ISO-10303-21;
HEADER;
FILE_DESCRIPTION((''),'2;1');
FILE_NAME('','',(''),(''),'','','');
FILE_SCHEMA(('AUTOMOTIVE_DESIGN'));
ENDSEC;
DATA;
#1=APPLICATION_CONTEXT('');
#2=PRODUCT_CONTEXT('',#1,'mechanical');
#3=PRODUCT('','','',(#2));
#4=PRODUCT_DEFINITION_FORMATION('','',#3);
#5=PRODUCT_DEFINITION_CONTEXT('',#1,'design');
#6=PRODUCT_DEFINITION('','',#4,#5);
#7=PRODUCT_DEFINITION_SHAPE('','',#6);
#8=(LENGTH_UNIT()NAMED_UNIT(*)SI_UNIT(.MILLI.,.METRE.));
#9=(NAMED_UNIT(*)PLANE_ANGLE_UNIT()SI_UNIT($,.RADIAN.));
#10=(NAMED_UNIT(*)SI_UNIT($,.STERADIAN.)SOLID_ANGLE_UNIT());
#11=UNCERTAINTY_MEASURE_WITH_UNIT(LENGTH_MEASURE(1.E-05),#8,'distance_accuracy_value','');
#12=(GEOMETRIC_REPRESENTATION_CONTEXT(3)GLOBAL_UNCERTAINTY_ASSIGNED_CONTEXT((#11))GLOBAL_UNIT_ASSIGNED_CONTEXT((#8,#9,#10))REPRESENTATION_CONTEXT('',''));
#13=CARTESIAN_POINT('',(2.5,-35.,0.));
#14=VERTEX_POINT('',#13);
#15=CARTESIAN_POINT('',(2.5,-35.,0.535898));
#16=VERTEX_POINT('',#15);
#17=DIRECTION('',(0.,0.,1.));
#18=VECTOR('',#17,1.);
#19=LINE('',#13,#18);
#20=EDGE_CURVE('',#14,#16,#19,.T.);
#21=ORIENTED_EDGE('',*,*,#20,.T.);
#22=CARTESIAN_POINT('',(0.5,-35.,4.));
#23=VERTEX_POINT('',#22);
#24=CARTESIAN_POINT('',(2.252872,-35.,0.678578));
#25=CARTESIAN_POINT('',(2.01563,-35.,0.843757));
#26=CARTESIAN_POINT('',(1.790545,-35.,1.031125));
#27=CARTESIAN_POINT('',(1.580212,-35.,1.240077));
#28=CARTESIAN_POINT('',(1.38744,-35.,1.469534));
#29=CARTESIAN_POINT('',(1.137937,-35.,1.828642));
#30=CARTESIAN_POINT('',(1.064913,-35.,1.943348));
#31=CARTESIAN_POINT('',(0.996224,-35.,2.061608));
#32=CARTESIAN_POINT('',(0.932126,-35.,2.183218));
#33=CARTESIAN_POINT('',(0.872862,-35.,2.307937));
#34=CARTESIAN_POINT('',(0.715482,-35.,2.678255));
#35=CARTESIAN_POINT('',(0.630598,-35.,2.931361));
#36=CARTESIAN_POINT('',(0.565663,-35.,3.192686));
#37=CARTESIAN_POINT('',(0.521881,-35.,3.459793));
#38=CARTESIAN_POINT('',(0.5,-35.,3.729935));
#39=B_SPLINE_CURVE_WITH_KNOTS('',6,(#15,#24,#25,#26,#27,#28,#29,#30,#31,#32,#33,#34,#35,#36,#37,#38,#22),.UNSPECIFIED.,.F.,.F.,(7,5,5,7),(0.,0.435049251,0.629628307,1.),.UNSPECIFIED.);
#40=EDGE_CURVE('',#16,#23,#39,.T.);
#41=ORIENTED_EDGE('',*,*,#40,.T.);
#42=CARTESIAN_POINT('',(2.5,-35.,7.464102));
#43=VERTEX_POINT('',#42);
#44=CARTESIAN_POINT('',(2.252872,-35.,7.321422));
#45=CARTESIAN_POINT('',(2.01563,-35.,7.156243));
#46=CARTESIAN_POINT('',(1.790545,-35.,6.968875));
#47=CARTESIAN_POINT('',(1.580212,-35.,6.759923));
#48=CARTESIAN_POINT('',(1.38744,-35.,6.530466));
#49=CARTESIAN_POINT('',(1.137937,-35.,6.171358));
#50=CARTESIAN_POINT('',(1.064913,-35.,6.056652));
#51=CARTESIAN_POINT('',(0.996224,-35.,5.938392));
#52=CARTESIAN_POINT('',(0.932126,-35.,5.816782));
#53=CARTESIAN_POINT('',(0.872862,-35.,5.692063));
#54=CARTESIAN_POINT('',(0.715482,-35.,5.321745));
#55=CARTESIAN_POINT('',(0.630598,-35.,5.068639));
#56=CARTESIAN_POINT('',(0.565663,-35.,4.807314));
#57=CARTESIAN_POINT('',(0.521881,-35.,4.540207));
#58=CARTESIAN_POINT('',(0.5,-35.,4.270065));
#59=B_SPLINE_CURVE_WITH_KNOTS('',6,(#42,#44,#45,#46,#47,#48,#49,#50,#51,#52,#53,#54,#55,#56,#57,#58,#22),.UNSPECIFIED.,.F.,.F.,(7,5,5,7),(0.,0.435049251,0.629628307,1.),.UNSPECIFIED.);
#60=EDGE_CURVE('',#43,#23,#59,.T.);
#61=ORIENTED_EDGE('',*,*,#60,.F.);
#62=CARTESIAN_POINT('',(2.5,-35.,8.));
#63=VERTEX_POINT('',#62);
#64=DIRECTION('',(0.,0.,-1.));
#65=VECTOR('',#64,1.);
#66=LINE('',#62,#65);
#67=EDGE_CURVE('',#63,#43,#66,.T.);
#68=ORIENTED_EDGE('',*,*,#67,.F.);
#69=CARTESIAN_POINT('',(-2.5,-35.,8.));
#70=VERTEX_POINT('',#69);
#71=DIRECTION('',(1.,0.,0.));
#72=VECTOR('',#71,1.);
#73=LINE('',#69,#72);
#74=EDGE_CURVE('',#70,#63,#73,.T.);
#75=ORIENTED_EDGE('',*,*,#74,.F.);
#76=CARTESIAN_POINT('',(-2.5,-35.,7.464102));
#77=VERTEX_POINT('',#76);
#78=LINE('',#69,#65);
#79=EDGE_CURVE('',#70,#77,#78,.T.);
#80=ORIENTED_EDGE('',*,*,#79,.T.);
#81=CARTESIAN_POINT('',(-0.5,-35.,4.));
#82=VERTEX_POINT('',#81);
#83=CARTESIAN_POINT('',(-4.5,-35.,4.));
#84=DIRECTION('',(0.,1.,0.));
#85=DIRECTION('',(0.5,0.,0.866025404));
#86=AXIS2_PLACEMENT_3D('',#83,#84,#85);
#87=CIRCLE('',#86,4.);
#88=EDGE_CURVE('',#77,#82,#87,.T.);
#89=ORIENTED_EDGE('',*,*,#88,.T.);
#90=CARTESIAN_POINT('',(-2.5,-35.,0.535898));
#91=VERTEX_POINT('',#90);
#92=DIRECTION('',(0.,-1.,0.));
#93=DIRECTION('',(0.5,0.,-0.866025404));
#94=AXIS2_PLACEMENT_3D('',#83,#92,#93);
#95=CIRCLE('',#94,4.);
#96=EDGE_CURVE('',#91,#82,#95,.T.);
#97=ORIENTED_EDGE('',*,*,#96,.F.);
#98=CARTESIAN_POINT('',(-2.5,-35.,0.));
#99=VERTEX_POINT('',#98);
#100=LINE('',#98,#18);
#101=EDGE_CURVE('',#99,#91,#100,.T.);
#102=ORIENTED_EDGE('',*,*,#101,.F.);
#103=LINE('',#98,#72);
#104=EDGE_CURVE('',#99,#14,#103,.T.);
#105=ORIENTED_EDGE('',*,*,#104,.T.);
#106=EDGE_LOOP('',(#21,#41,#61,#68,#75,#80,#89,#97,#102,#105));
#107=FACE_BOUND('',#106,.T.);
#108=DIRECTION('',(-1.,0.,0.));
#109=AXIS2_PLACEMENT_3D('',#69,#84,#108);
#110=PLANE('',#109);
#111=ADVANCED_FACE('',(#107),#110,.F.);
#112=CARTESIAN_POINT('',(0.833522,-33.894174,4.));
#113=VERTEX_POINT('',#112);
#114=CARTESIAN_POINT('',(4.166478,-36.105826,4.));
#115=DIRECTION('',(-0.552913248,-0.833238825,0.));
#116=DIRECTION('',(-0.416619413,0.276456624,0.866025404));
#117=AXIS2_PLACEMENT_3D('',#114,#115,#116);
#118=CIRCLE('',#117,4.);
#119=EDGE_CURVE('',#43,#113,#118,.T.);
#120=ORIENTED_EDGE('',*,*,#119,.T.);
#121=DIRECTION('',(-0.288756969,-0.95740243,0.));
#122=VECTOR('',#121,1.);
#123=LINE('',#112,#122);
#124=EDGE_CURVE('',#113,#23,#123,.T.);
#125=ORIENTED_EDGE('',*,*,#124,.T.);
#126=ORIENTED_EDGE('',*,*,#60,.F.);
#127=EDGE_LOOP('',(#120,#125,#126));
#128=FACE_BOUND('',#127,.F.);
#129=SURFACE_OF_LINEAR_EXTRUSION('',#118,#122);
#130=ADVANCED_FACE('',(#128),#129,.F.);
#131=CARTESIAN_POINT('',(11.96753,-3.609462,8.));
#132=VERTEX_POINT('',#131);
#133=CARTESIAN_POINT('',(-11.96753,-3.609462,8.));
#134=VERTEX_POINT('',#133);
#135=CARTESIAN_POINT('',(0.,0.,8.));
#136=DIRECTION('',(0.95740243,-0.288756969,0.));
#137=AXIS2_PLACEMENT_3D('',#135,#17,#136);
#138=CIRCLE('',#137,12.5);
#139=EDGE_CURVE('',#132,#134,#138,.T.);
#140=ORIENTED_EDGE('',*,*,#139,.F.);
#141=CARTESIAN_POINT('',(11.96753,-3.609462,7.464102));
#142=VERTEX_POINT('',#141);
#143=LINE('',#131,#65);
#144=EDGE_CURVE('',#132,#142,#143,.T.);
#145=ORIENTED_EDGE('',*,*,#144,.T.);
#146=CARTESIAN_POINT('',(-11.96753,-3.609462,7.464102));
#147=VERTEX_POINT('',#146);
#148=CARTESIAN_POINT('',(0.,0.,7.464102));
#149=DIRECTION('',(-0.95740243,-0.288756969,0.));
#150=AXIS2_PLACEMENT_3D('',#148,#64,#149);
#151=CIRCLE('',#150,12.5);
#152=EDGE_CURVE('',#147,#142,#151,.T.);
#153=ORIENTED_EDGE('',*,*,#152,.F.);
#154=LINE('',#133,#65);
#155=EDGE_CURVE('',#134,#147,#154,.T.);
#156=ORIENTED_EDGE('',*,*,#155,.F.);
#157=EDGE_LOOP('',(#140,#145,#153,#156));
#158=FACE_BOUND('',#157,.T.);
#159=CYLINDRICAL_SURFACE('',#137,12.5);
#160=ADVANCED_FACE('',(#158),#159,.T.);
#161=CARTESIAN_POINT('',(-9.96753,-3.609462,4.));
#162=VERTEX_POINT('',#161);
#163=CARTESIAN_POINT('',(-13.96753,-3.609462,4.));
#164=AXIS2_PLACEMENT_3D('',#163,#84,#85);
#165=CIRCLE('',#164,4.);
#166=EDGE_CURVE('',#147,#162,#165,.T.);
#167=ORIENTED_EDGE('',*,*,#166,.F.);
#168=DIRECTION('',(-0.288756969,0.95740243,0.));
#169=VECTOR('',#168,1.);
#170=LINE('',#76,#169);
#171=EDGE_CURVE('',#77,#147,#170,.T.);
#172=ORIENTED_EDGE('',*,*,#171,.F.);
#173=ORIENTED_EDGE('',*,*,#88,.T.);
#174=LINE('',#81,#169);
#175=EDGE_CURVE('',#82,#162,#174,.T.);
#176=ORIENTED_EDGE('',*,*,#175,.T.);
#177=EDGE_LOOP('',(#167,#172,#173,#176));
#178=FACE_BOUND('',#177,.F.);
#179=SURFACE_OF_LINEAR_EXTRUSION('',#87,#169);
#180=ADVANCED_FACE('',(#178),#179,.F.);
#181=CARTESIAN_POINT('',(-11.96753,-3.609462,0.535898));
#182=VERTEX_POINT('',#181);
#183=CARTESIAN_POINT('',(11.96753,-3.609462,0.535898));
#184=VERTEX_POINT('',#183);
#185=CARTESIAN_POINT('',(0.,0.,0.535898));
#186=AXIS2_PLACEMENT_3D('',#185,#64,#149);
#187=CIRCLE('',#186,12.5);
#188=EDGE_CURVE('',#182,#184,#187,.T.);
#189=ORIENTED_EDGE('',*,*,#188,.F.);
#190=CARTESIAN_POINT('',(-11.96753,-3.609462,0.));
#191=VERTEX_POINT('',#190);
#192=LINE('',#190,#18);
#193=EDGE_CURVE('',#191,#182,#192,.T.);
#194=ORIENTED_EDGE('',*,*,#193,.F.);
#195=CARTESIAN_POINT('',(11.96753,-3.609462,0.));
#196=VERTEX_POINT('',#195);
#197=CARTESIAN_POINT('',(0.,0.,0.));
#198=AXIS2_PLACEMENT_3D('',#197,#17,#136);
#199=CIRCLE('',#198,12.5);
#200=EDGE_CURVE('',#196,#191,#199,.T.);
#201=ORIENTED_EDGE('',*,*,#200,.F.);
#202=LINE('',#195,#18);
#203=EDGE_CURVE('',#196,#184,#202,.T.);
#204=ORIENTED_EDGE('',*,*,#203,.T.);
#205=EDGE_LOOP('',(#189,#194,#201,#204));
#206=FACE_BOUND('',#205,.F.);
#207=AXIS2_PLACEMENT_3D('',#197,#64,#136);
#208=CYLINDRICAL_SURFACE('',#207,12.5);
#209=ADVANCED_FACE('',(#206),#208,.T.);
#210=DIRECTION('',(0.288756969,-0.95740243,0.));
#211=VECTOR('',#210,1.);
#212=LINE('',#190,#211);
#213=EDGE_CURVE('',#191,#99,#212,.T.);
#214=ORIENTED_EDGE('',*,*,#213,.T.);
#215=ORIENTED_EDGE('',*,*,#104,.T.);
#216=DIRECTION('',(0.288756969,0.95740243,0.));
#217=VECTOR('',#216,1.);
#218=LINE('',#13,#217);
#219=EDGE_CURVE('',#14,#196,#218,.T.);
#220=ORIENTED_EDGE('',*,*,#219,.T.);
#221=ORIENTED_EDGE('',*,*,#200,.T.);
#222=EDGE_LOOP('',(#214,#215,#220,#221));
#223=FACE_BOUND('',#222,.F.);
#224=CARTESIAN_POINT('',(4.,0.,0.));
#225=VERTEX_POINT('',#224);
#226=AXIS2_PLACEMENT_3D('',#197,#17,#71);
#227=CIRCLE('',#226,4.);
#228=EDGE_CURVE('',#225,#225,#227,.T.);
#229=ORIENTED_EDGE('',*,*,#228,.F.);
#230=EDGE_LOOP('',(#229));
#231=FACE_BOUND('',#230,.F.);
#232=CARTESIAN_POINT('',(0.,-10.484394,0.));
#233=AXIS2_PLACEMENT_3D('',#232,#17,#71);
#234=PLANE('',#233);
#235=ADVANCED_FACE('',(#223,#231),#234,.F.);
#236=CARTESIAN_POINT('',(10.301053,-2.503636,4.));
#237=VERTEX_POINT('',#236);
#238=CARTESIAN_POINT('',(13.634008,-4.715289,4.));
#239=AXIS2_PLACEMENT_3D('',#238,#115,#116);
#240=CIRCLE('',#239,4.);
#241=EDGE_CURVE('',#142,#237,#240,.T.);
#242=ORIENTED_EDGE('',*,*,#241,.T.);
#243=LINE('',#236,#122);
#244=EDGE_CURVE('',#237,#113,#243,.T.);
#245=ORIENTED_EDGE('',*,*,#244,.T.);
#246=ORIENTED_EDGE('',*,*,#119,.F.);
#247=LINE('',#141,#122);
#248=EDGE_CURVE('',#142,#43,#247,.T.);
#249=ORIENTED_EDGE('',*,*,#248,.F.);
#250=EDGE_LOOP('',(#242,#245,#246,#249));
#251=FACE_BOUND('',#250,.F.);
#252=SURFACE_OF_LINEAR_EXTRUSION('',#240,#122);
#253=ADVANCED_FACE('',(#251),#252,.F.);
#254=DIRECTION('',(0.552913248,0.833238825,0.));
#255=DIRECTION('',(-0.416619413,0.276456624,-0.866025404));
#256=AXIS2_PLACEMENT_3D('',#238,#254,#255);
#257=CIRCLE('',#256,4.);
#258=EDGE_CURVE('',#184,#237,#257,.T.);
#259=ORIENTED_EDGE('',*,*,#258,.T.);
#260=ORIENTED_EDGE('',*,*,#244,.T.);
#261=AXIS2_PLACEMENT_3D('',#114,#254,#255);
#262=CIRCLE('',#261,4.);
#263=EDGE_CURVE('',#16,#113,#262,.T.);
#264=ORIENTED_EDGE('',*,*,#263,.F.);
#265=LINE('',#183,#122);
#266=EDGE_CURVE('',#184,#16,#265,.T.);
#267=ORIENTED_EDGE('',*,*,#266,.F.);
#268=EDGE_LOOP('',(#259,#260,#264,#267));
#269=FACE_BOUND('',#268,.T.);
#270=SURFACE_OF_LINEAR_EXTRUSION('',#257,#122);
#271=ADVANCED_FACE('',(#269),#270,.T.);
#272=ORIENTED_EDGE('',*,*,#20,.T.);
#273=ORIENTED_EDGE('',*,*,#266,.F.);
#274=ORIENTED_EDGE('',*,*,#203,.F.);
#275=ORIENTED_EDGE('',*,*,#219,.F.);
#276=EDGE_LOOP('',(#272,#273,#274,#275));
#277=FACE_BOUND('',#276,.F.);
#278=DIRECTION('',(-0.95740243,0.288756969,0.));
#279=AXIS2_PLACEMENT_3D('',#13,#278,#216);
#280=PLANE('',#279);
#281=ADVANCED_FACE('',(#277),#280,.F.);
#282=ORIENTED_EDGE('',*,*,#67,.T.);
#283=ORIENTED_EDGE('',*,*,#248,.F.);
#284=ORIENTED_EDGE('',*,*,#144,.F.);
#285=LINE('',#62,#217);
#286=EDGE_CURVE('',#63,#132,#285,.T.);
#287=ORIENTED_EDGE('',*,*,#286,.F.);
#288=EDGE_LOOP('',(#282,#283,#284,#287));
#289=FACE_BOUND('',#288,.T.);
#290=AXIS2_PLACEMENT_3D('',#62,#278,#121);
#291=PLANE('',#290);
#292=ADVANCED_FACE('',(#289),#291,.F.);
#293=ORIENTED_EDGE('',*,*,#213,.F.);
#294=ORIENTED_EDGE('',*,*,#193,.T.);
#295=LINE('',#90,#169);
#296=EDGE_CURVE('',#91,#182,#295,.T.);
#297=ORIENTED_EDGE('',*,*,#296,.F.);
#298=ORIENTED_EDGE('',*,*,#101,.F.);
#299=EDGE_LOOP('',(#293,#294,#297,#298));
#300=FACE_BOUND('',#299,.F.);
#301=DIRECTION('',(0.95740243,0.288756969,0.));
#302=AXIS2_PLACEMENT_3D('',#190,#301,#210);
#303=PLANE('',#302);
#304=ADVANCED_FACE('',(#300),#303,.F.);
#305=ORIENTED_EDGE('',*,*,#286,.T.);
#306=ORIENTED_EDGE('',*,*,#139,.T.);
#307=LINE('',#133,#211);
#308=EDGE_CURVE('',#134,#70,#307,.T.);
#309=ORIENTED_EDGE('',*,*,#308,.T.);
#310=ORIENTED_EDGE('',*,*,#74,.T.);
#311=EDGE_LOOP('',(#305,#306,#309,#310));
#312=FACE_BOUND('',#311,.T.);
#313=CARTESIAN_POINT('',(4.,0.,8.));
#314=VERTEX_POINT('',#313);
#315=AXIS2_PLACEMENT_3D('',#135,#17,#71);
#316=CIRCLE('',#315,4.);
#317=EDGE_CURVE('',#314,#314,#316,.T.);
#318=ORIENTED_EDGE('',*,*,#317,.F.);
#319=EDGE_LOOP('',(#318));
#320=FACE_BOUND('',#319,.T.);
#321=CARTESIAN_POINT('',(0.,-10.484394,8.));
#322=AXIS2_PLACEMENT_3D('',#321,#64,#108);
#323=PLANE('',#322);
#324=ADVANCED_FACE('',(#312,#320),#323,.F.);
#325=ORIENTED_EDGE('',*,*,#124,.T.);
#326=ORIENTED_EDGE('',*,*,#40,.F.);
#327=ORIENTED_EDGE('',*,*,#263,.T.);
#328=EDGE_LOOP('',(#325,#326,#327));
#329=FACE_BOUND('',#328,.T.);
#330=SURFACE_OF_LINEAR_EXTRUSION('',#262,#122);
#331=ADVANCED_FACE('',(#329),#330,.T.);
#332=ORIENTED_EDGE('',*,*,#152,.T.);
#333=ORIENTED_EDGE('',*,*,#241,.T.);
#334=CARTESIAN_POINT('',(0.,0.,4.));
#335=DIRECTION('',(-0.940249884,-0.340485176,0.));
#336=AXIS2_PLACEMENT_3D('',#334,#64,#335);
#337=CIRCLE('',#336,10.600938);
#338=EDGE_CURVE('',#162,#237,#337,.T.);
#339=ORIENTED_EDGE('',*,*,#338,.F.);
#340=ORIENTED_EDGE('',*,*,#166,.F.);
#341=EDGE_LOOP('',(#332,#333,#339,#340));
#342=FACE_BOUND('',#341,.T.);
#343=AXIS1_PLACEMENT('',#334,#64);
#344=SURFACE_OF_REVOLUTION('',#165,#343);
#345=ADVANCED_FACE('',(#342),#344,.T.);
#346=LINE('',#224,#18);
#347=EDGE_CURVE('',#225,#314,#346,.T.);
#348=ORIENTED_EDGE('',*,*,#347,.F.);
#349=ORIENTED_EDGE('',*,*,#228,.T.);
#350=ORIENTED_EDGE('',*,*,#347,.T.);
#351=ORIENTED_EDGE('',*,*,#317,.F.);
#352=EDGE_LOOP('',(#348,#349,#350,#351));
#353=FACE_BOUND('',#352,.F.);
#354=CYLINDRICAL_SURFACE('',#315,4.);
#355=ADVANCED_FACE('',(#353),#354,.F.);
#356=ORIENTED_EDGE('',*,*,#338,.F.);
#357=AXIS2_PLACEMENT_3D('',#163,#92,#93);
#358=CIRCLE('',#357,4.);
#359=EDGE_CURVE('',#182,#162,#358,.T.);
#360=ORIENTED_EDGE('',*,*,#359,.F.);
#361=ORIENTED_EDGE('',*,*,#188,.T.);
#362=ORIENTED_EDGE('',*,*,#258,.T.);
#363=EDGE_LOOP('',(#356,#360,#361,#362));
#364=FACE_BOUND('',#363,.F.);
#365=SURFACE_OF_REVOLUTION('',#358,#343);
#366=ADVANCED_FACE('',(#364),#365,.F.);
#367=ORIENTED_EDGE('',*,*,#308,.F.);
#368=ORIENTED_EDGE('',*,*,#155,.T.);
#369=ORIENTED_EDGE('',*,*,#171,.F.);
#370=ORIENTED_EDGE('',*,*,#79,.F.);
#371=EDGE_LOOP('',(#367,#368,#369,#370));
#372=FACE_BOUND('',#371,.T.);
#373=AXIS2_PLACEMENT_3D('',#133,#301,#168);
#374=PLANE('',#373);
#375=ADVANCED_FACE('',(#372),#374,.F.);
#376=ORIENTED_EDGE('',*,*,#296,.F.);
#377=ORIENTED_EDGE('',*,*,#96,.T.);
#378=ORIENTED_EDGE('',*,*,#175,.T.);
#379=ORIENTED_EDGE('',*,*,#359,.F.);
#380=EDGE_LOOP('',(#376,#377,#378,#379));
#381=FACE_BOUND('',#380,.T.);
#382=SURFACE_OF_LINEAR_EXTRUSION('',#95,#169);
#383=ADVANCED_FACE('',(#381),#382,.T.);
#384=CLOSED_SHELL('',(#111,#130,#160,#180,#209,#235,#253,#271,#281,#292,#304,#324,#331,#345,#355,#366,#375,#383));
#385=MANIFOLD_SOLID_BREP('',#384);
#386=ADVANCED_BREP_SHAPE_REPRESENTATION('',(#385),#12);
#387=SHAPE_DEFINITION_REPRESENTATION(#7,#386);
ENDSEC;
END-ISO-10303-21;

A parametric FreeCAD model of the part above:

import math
import FreeCAD as App
import Part
import Sketcher
Q = App.Units.Quantity

doc = App.newDocument("Part")
params = doc.addObject("Spreadsheet::Sheet", "Params")
for row, (alias, value) in enumerate([
    ("sketch1_diameter", "8 mm"),
    ("sketch1_radius", "12.5 mm"),
    ("sketch1_width", "5 mm"),
    ("pad1_length", "4 mm"),
    ("sketch2_radius", "4 mm"),
    ("sketch2_width", "2 mm"),
    ("sketch3_radius", "12.5 mm"),
], start=1):
    params.set(f"A{row}", alias)
    params.set(f"B{row}", "=" + value)
    params.setAlias(f"B{row}", alias)

body = doc.addObject("PartDesign::Body", "Body")

# Sketch on XY plane
sketch1 = body.newObject("Sketcher::SketchObject", "Sketch")
sketch1.AttachmentSupport = (doc.getObject("XY_Plane"), [""])
sketch1.MapMode = "FlatFace"
sketch1.addGeometry(Part.LineSegment(App.Vector(2.5, -35, 0), App.Vector(12, -3.6, 0)), False)
sketch1.addGeometry(Part.ArcOfCircle(Part.Circle(App.Vector(0, 0, 0), App.Vector(0, 0, 1), 12.5), math.radians(-17), math.radians(197)), False)
sketch1.addGeometry(Part.LineSegment(App.Vector(-12, -3.6, 0), App.Vector(-2.5, -35, 0)), False)
sketch1.addGeometry(Part.LineSegment(App.Vector(-2.5, -35, 0), App.Vector(2.5, -35, 0)), False)
sketch1.addGeometry(Part.Circle(App.Vector(0, 0, 0), App.Vector(0, 0, 1), 4), False)
sketch1.addConstraint(Sketcher.Constraint("Tangent", 0, 2, 1, 1))
sketch1.addConstraint(Sketcher.Constraint("Tangent", 1, 2, 2, 1))
sketch1.addConstraint(Sketcher.Constraint("Coincident", 2, 2, 3, 1))
sketch1.addConstraint(Sketcher.Constraint("Coincident", 3, 2, 0, 1))
sketch1.addConstraint(Sketcher.Constraint("Horizontal", 3))
sketch1.addConstraint(Sketcher.Constraint("Coincident", 1, 3, -1, 1))
sketch1.addConstraint(Sketcher.Constraint("Coincident", 4, 3, -1, 1))
sketch1.addConstraint(Sketcher.Constraint("Horizontal", 0, 2, 1, 2))
sketch1.addConstraint(Sketcher.Constraint("Diameter", 4, Q("8 mm")))
sketch1.addConstraint(Sketcher.Constraint("Radius", 1, Q("12.5 mm")))
sketch1.addConstraint(Sketcher.Constraint("DistanceX", 3, 1, 3, 2, Q("5 mm")))
sketch1.addConstraint(Sketcher.Constraint("DistanceY", 2, 2, -1, 1, Q("35 mm")))
sketch1.setExpression("Constraints[8]", "Params.sketch1_diameter")
sketch1.setExpression("Constraints[9]", "Params.sketch1_radius")
sketch1.setExpression("Constraints[10]", "Params.sketch1_width")
pad1 = body.newObject("PartDesign::Pad", "Pad")
pad1.Profile = sketch1
pad1.setExpression("Length", "Params.pad1_length")

# Sketch on XZ plane
sketch2 = body.newObject("Sketcher::SketchObject", "Sketch001")
sketch2.AttachmentSupport = (doc.getObject("XZ_Plane"), [""])
sketch2.MapMode = "FlatFace"
sketch2.AttachmentOffset = App.Placement(App.Vector(0, 0, 35), App.Rotation())
sketch2.addGeometry(Part.ArcOfCircle(Part.Circle(App.Vector(-4.5, 4, 0), App.Vector(0, 0, 1), 4), math.radians(-60), math.radians(0)), False)
sketch2.addGeometry(Part.LineSegment(App.Vector(-0.5, 4, 0), App.Vector(-2.5, 4, 0)), False)
sketch2.addGeometry(Part.LineSegment(App.Vector(-2.5, 4, 0), App.Vector(-2.5, 0.5, 0)), False)
sketch2.addConstraint(Sketcher.Constraint("Coincident", 0, 2, 1, 1))
sketch2.addConstraint(Sketcher.Constraint("Coincident", 1, 2, 2, 1))
sketch2.addConstraint(Sketcher.Constraint("Coincident", 2, 2, 0, 1))
sketch2.addConstraint(Sketcher.Constraint("Horizontal", 1))
sketch2.addConstraint(Sketcher.Constraint("Vertical", 2))
sketch2.addConstraint(Sketcher.Constraint("Radius", 0, Q("4 mm")))
sketch2.addConstraint(Sketcher.Constraint("DistanceX", 1, 2, 1, 1, Q("2 mm")))
sketch2.addConstraint(Sketcher.Constraint("DistanceY", -1, 1, 0, 3, Q("4 mm")))
sketch2.addConstraint(Sketcher.Constraint("DistanceY", -1, 1, 0, 2, Q("4 mm")))
sketch2.addConstraint(Sketcher.Constraint("DistanceX", 0, 3, -1, 1, Q("4.5 mm")))
sketch2.setExpression("Constraints[5]", "Params.sketch2_radius")
sketch2.setExpression("Constraints[6]", "Params.sketch2_width")

# Sketch on XY plane
sketch3 = body.newObject("Sketcher::SketchObject", "Sketch002")
sketch3.AttachmentSupport = (doc.getObject("XY_Plane"), [""])
sketch3.MapMode = "FlatFace"
sketch3.AttachmentOffset = App.Placement(App.Vector(0, 0, 4), App.Rotation())
sketch3.addGeometry(Part.LineSegment(App.Vector(-2, -35, 0), App.Vector(-12, -4, 0)), False)
sketch3.addGeometry(Part.ArcOfCircle(Part.Circle(App.Vector(0, 0, 0), App.Vector(0, 0, 1), 12), math.radians(-17), math.radians(197)), False)
sketch3.addGeometry(Part.LineSegment(App.Vector(12, -4, 0), App.Vector(2, -35, 0)), False)
sketch3.addGeometry(Part.LineSegment(App.Vector(2, -35, 0), App.Vector(0, -42, 0)), False)
sketch3.addConstraint(Sketcher.Constraint("Tangent", 0, 2, 1, 2))
sketch3.addConstraint(Sketcher.Constraint("Tangent", 1, 1, 2, 1))
sketch3.addConstraint(Sketcher.Constraint("Coincident", 2, 2, 3, 1))
sketch3.addConstraint(Sketcher.Constraint("Coincident", 1, 3, -1, 1))
sketch3.addConstraint(Sketcher.Constraint("Symmetric", 0, 1, 2, 2, -2))
sketch3.addConstraint(Sketcher.Constraint("Parallel", 2, 3))
sketch3.addConstraint(Sketcher.Constraint("Radius", 1, Q("12.5 mm")))
sketch3.addConstraint(Sketcher.Constraint("DistanceY", 0, 1, -1, 1, Q("35 mm")))
sketch3.addConstraint(Sketcher.Constraint("DistanceX", 0, 1, 2, 2, Q("5 mm")))
sketch3.addConstraint(Sketcher.Constraint("DistanceY", 3, 2, -1, 1, Q("42.156072 mm")))
sketch3.setExpression("Constraints[6]", "Params.sketch3_radius")
doc.recompute()

subtractivepipe = body.newObject("PartDesign::SubtractivePipe", "SubtractivePipe")
subtractivepipe.Profile = sketch2
subtractivepipe.Spine = (sketch3, ["Edge1", "Edge2", "Edge3", "Edge4"])
body2 = doc.addObject("PartDesign::Body", "Body001")
doc.recompute()

body2.BaseFeature = body
doc.recompute()

mirroring = doc.addObject("Part::Mirroring", "Mirroring")
mirroring.Source = body
mirroring.Base = App.Vector(-0.000232, -7.791077, 4)
mirroring.Normal = App.Vector(0, 0, 1)
body3 = doc.addObject("PartDesign::Body", "Body002")
body3.BaseFeature = mirroring
boolean = body2.newObject("PartDesign::Boolean", "Boolean")
boolean.Type = "Fuse"
boolean.addObjects([body3])
doc.recompute()
mirroring.Visibility = False

doc.recompute()
